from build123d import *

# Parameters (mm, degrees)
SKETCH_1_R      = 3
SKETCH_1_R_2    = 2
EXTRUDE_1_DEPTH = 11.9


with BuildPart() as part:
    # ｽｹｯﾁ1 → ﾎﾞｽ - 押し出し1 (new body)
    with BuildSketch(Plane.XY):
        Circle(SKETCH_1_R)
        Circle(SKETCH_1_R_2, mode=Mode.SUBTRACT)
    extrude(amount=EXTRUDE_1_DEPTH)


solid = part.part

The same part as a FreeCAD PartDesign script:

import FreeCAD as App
import Part
import Sketcher
from FreeCAD import Vector

doc = App.newDocument("Part")
body = doc.addObject("PartDesign::Body", "Body")

# Sketch on XY plane
sketch1 = doc.addObject("Sketcher::SketchObject", "Sketch")
body.addObject(sketch1)
sketch1.AttachmentSupport = (doc.XY_Plane, [""])
sketch1.MapMode = "FlatFace"
sketch1.addGeometry([
    Part.Circle(Vector(0, 0, 0), Vector(0, 0, 1), 3),
    Part.Circle(Vector(0, 0, 0), Vector(0, 0, 1), 2),
], False)
sketch1.addConstraint([
    Sketcher.Constraint("Coincident", 0, 3, -1, 1),
    Sketcher.Constraint("Coincident", 1, 3, -1, 1),
    Sketcher.Constraint("Diameter", 0, 6.0),
    Sketcher.Constraint("Diameter", 1, 4.0),
])
pad1 = doc.addObject("PartDesign::Pad", "Pad")
body.addObject(pad1)
pad1.Profile = sketch1
pad1.Length = 11.9

doc.recompute()
